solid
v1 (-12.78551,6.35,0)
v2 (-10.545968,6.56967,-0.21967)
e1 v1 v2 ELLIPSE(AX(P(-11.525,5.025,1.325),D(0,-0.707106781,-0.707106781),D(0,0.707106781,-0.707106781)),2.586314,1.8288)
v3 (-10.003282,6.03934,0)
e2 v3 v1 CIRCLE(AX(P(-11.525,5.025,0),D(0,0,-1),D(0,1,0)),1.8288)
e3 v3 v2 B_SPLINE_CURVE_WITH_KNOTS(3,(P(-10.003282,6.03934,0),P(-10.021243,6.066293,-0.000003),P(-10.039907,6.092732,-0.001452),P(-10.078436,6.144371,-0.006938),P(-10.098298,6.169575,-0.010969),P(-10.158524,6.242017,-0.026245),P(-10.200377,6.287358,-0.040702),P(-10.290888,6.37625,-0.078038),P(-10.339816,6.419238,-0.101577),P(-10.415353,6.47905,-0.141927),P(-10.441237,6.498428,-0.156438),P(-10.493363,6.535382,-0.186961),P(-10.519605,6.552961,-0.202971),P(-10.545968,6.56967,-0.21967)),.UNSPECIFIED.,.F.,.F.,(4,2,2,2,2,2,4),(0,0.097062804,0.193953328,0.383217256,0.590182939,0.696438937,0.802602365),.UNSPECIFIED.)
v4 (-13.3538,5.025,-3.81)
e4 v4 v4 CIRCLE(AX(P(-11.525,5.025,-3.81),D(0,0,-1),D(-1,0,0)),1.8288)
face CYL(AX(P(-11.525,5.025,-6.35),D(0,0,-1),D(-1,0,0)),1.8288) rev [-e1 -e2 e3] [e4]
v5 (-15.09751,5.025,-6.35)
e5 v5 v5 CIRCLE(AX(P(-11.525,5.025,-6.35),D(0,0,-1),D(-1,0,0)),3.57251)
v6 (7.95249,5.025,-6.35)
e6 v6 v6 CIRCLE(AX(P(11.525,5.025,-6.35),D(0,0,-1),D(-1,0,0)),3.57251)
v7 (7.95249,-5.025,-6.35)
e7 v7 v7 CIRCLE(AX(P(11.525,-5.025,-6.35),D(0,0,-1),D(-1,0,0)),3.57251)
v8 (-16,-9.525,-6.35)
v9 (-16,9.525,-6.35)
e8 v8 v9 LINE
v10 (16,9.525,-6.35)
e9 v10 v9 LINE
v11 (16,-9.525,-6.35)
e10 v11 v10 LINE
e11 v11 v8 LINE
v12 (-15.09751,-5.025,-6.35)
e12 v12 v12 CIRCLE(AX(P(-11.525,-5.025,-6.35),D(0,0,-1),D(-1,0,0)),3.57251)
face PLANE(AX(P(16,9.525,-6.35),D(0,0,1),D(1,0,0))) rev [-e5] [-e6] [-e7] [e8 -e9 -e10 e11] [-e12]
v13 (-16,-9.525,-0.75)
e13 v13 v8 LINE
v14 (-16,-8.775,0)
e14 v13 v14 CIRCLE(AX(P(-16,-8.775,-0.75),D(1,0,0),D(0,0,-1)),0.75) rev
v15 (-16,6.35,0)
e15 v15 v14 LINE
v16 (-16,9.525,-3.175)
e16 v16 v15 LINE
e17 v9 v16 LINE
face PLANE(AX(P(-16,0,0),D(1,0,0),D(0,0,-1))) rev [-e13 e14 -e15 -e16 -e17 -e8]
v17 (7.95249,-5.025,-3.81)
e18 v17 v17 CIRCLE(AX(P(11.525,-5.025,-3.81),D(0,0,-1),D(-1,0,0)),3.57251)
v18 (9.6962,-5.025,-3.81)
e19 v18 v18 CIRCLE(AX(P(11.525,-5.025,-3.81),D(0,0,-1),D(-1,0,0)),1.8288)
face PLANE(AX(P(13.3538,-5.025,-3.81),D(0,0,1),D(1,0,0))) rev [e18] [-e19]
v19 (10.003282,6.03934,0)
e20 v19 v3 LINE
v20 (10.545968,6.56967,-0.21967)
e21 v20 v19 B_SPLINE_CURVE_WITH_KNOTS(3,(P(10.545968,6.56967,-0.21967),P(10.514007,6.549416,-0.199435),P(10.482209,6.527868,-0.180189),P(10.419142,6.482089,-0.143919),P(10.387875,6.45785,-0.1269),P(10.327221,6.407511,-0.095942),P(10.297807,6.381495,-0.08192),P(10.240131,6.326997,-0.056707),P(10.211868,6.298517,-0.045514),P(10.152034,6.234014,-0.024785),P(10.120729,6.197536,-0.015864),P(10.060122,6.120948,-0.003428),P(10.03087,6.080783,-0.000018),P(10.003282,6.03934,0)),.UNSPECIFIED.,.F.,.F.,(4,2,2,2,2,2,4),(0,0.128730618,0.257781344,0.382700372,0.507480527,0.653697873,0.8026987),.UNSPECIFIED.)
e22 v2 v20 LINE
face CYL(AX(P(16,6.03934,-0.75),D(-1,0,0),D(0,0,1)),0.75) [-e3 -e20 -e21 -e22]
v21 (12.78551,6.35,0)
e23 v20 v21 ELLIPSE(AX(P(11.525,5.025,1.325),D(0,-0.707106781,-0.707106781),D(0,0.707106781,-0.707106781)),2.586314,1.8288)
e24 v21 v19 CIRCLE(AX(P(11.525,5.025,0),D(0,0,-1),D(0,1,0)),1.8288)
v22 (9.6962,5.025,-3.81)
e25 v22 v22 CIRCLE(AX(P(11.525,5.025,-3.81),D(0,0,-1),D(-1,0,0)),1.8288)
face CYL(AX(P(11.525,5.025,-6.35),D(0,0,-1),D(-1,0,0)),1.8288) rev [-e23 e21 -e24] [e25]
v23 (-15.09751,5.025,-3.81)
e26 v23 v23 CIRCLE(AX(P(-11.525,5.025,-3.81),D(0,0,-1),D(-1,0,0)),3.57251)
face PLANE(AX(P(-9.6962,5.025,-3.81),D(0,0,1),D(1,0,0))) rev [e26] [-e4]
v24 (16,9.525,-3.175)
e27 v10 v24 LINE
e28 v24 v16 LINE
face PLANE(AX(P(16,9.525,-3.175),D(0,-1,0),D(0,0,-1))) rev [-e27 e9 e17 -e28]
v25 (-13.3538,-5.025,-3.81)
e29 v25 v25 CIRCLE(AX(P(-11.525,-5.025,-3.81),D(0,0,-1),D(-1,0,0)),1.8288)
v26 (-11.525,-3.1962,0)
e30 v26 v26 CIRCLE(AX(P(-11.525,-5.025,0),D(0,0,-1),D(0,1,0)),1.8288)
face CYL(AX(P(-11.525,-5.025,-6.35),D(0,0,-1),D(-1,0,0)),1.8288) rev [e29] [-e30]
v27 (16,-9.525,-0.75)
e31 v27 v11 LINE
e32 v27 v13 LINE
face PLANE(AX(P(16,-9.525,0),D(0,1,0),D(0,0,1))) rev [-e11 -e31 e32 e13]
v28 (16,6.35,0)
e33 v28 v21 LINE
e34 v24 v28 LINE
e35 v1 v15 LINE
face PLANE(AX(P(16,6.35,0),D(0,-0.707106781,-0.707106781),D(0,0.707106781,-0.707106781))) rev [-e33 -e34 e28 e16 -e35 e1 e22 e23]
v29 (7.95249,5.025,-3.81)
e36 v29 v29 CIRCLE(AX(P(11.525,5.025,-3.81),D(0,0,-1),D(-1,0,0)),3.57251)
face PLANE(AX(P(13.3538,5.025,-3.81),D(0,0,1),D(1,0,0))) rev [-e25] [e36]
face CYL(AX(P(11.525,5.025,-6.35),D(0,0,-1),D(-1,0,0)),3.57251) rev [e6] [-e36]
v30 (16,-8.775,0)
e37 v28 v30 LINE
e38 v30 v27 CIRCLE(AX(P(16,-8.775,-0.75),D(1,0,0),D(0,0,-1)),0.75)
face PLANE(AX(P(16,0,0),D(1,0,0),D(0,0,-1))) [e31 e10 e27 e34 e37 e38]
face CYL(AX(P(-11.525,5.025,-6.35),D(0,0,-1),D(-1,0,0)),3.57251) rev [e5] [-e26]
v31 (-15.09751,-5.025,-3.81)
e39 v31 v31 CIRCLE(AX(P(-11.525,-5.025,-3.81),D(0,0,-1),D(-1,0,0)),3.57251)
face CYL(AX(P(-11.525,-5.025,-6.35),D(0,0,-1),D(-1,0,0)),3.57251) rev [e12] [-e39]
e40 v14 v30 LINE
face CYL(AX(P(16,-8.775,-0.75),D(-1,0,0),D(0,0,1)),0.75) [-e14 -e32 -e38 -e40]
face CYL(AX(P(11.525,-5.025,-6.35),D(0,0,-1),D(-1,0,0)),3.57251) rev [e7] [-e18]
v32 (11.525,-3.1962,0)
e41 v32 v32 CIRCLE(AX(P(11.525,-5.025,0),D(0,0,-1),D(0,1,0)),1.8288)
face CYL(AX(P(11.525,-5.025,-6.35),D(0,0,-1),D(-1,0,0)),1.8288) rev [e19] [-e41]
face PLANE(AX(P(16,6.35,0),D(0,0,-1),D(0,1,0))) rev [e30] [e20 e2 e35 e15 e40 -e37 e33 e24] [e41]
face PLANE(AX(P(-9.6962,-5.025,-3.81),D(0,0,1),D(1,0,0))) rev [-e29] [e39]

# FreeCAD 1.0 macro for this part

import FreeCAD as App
import Part
import Sketcher
from FreeCAD import Vector
Q = App.Units.Quantity


def edges_at(feature, points):
    """Names of the edges that pass closest to the given points."""
    edges = feature.Shape.Edges
    near = lambda p: min(range(len(edges)), key=lambda i: edges[i].distToShape(Part.Vertex(*p))[0])
    return sorted({f"Edge{near(p) + 1}" for p in points})


def add_polygon(sketch, points):
    """Adds a closed chain of lines whose ends are joined by coincident constraints."""
    first, n = sketch.GeometryCount, len(points)
    for a, b in zip(points, points[1:] + points[:1]):
        sketch.addGeometry(Part.LineSegment(App.Vector(*a, 0), App.Vector(*b, 0)), False)
    for i in range(n):
        sketch.addConstraint(Sketcher.Constraint("Coincident", first + i, 2, first + (i + 1) % n, 1))

doc = App.newDocument("Part")
body = doc.addObject("PartDesign::Body", "Body")

# Sketch on YZ plane
sketch1 = body.newObject("Sketcher::SketchObject", "Sketch")
sketch1.AttachmentSupport = (doc.getObject("YZ_Plane"), [""])
sketch1.MapMode = "FlatFace"
add_polygon(sketch1, [(9.5, -3.2), (6.3, 0), (-9.5, 0), (-9.5, -6.3), (9.5, -6.3)])  # lines 0-4
sketch1.addConstraint([
    Sketcher.Constraint("Horizontal", 1),
    Sketcher.Constraint("Vertical", 2),
    Sketcher.Constraint("Horizontal", 3),
    Sketcher.Constraint("Vertical", 4),
    Sketcher.Constraint("PointOnObject", 0, 2, -1),
    Sketcher.Constraint("Angle", 0, Q("135 deg")),
    Sketcher.Constraint("DistanceX", 3, 1, 3, 2, Q("0.75 in")),
    Sketcher.Constraint("DistanceY", 2, 2, 2, 1, Q("0.25 in")),
    Sketcher.Constraint("DistanceX", 1, 2, 1, 1, Q("0.625 in")),
    Sketcher.Constraint("DistanceX", -1, 1, 0, 2, Q("0.25 in")),
])
pad1 = body.newObject("PartDesign::Pad", "Pad")
pad1.Profile = sketch1
pad1.Length = 32
pad1.Midplane = True

# Sketch on XY plane
sketch2 = body.newObject("Sketcher::SketchObject", "Sketch001")
sketch2.AttachmentSupport = (doc.getObject("XY_Plane"), [""])
sketch2.MapMode = "FlatFace"
sketch2.AttachmentOffset = App.Placement(Vector(0, 0, -0.25 * 25.4), App.Rotation())
sketch2.addGeometry([
    Part.Circle(Vector(-11.5, -5, 0), Vector(0, 0, 1), 1.8),
    Part.Circle(Vector(11.5, 5, 0), Vector(0, 0, 1), 1.8),
    Part.Circle(Vector(11.5, -5, 0), Vector(0, 0, 1), 1.8),
    Part.Circle(Vector(-11.5, 5, 0), Vector(0, 0, 1), 1.8),
], False)
sketch2.addConstraint([
    Sketcher.Constraint("Equal", 0, 1),
    Sketcher.Constraint("Equal", 1, 2),
    Sketcher.Constraint("Equal", 2, 3),
    Sketcher.Constraint("Symmetric", 0, 3, 1, 3, -1, 1),
    Sketcher.Constraint("Symmetric", 2, 3, 3, 3, -1, 1),
    Sketcher.Constraint("Symmetric", 0, 3, 2, 3, -2),
    Sketcher.Constraint("Diameter", 0, Q("0.144 in")),
    Sketcher.Constraint("DistanceX", 0, 3, -1, 1, 11.525),
    Sketcher.Constraint("DistanceY", 0, 3, -1, 1, 5.025),
])
doc.recompute()
hole = body.newObject("PartDesign::Hole", "Hole")
hole.Profile = sketch2
hole.ThreadType = "None"
hole.Diameter = Q("0.144 in")
hole.DepthType = "Dimension"
hole.Depth = Q("0.37 in")
hole.DrillPoint = "Angled"
hole.DrillPointAngle = 118
hole.HoleCutType = "Counterbore"
hole.HoleCutDiameter = Q("0.2813 in")
hole.HoleCutDepth = Q("0.1 in")
hole.Reversed = True
doc.recompute()

fillet = body.newObject("PartDesign::Fillet", "Fillet")
fillet.Base = (hole, edges_at(hole, [(0, 6.35, 0), (0, -9.525, 0)]))
fillet.Radius = 0.75

doc.recompute()
